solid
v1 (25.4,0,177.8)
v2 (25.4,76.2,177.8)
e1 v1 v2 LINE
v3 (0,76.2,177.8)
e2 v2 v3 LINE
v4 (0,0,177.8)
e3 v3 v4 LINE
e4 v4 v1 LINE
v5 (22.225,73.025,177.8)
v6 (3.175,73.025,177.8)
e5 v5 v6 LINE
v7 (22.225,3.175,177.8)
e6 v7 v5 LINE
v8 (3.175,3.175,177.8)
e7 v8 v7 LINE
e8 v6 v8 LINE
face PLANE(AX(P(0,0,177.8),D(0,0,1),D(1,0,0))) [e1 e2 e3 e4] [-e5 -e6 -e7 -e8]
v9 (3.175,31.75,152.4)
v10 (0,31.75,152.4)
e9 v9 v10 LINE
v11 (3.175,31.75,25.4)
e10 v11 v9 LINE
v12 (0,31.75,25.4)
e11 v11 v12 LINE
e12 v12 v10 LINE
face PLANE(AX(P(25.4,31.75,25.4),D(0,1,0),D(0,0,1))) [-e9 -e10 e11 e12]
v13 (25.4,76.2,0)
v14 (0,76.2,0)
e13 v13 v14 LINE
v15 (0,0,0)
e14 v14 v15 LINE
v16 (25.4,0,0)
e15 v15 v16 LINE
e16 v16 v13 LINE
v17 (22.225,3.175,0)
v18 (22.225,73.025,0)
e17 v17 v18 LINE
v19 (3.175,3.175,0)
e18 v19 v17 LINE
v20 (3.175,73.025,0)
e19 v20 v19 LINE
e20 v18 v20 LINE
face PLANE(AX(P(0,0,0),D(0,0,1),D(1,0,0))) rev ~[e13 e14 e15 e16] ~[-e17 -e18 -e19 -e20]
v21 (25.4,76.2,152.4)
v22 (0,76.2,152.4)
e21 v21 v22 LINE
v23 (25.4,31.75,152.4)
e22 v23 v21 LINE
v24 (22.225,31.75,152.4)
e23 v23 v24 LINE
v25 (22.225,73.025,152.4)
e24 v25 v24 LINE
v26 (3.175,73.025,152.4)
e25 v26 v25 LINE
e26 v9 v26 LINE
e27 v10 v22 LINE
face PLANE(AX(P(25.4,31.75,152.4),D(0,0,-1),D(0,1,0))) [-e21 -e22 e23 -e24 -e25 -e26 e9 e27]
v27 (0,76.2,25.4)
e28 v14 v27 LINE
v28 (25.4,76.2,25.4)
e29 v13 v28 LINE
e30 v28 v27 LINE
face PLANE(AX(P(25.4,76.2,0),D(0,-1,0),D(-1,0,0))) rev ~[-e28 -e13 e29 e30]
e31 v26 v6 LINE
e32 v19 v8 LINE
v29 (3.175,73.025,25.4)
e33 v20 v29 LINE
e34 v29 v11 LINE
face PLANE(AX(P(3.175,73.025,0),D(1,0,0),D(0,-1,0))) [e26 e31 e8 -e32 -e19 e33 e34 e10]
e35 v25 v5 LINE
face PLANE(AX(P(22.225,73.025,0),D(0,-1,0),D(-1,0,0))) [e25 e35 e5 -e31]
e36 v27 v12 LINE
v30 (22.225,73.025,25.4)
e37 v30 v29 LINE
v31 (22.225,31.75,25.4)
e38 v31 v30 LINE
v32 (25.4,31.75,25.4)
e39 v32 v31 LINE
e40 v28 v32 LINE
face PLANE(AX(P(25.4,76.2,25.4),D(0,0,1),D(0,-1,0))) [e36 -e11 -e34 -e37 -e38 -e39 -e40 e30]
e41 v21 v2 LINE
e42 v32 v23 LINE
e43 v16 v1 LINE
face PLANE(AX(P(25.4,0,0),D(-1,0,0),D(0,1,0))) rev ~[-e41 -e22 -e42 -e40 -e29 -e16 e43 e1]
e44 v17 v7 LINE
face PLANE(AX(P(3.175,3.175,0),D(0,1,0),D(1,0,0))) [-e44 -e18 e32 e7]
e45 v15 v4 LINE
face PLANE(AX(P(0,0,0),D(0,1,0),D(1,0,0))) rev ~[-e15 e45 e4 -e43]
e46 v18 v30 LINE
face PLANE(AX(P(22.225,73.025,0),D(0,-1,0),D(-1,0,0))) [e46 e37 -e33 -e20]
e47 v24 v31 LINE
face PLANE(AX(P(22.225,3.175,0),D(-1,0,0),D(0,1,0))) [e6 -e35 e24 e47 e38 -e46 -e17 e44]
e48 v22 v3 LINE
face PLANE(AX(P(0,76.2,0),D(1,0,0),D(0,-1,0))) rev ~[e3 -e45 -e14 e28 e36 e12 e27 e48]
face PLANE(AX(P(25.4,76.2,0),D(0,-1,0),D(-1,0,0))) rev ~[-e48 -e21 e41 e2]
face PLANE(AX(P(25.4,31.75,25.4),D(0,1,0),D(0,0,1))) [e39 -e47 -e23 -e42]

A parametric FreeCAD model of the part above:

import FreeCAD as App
import Part
import Sketcher

V = App.Vector
Q = App.Units.Quantity

doc = App.newDocument("Part")
body = doc.addObject("PartDesign::Body", "Body")

sketch1 = doc.addObject("Sketcher::SketchObject", "Sketch")
body.addObject(sketch1)
sketch1.AttachmentSupport = (doc.XY_Plane, [""])
sketch1.MapMode = "FlatFace"
sketch1.addGeometry([
    Part.LineSegment(V(0, 76, 0), V(0, 0, 0)),
    Part.LineSegment(V(0, 0, 0), V(25, 0, 0)),
    Part.LineSegment(V(25, 0, 0), V(25, 76, 0)),
    Part.LineSegment(V(25, 76, 0), V(0, 76, 0)),
    Part.LineSegment(V(22, 3, 0), V(3, 3, 0)),
    Part.LineSegment(V(3, 3, 0), V(3, 73, 0)),
    Part.LineSegment(V(3, 73, 0), V(22, 73, 0)),
    Part.LineSegment(V(22, 73, 0), V(22, 3, 0)),
], False)
sketch1.addConstraint([
    Sketcher.Constraint("Coincident", 0, 2, 1, 1),
    Sketcher.Constraint("Coincident", 1, 2, 2, 1),
    Sketcher.Constraint("Coincident", 2, 2, 3, 1),
    Sketcher.Constraint("Coincident", 3, 2, 0, 1),
    Sketcher.Constraint("Coincident", 4, 2, 5, 1),
    Sketcher.Constraint("Coincident", 5, 2, 6, 1),
    Sketcher.Constraint("Coincident", 6, 2, 7, 1),
    Sketcher.Constraint("Coincident", 7, 2, 4, 1),
    Sketcher.Constraint("Vertical", 0),
    Sketcher.Constraint("Horizontal", 1),
    Sketcher.Constraint("Vertical", 2),
    Sketcher.Constraint("Horizontal", 3),
    Sketcher.Constraint("Horizontal", 4),
    Sketcher.Constraint("Vertical", 5),
    Sketcher.Constraint("Horizontal", 6),
    Sketcher.Constraint("Vertical", 7),
    Sketcher.Constraint("Coincident", 0, 2, -1, 1),
    Sketcher.Constraint("DistanceX", 1, 1, 1, 2, Q("1 in")),
    Sketcher.Constraint("DistanceY", 0, 2, 0, 1, Q("3 in")),
    Sketcher.Constraint("DistanceX", -1, 1, 4, 2, Q("0.125 in")),
    Sketcher.Constraint("DistanceY", -1, 1, 4, 2, Q("0.125 in")),
    Sketcher.Constraint("DistanceY", 5, 2, 3, 2, Q("0.125 in")),
    Sketcher.Constraint("DistanceX", 6, 2, 2, 2, Q("0.125 in")),
])
pad1 = doc.addObject("PartDesign::Pad", "Pad")
body.addObject(pad1)
pad1.Profile = sketch1
pad1.Length = Q("7 in")

sketch2 = doc.addObject("Sketcher::SketchObject", "Sketch001")
body.addObject(sketch2)
sketch2.AttachmentSupport = (doc.YZ_Plane, [""])
sketch2.MapMode = "FlatFace"
sketch2.AttachmentOffset = App.Placement(V(0, 0, 1 * 25.4), App.Rotation())
sketch2.addGeometry([
    Part.LineSegment(V(32, 25, 0), V(76, 25, 0)),
    Part.LineSegment(V(76, 25, 0), V(76, 152, 0)),
    Part.LineSegment(V(76, 152, 0), V(32, 152, 0)),
    Part.LineSegment(V(32, 152, 0), V(32, 25, 0)),
], False)
sketch2.addConstraint([
    Sketcher.Constraint("Coincident", 0, 2, 1, 1),
    Sketcher.Constraint("Coincident", 1, 2, 2, 1),
    Sketcher.Constraint("Coincident", 2, 2, 3, 1),
    Sketcher.Constraint("Coincident", 3, 2, 0, 1),
    Sketcher.Constraint("Horizontal", 0),
    Sketcher.Constraint("Vertical", 1),
    Sketcher.Constraint("Horizontal", 2),
    Sketcher.Constraint("Vertical", 3),
    Sketcher.Constraint("DistanceY", -1, 1, 0, 2, Q("1 in")),
    Sketcher.Constraint("DistanceX", 0, 1, 0, 2, Q("1.75 in")),
    Sketcher.Constraint("DistanceY", 1, 1, 1, 2, Q("5 in")),
    Sketcher.Constraint("DistanceX", -1, 1, 0, 2, Q("3 in")),
])
pocket1 = doc.addObject("PartDesign::Pocket", "Pocket")
body.addObject(pocket1)
pocket1.Profile = sketch2
pocket1.Type = "ThroughAll"

doc.recompute()
